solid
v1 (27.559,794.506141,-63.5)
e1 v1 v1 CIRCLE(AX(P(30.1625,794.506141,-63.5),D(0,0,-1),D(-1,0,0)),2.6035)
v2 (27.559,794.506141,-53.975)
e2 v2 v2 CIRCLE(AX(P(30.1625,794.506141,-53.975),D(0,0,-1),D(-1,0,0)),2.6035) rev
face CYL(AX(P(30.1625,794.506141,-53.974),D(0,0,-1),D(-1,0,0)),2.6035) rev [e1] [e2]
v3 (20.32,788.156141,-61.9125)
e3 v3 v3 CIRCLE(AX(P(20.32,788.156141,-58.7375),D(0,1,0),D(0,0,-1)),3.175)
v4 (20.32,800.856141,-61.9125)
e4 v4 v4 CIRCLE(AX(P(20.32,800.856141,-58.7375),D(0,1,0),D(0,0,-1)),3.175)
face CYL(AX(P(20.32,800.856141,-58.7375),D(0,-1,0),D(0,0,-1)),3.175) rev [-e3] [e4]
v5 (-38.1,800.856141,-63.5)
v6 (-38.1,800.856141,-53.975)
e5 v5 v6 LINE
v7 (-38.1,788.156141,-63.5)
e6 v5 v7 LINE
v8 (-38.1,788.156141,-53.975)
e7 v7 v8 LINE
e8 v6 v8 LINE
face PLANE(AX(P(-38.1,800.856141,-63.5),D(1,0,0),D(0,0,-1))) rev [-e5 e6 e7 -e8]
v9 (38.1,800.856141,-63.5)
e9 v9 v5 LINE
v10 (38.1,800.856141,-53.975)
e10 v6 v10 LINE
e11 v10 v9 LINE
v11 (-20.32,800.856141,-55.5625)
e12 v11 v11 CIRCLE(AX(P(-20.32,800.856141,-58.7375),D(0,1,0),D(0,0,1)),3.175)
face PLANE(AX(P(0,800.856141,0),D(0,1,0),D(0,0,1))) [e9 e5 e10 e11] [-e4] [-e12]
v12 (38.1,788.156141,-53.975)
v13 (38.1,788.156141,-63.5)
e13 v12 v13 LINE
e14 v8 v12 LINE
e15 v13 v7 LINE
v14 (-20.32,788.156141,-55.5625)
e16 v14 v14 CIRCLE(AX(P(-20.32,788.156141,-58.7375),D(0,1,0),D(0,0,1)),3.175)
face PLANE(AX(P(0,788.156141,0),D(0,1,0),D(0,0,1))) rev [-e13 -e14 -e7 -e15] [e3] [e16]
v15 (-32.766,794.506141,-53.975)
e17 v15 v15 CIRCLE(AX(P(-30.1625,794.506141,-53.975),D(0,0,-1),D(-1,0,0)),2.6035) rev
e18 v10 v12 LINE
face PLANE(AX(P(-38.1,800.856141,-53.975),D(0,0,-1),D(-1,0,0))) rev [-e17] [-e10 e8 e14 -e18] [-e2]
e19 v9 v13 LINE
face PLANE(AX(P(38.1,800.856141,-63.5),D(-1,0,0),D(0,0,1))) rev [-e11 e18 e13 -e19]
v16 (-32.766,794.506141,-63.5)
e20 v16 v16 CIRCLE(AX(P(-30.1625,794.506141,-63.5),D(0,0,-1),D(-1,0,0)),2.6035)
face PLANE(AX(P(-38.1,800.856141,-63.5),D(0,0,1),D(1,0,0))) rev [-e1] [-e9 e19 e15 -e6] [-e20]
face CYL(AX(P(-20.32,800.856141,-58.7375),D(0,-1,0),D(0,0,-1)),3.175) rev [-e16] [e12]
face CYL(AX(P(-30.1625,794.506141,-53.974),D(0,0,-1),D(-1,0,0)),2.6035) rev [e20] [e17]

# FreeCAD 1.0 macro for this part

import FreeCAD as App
import Part
import Sketcher

V = App.Vector
Q = App.Units.Quantity


def add_polygon(sketch, points):
    """Adds a closed chain of lines whose ends are joined by coincident constraints."""
    first, n = sketch.GeometryCount, len(points)
    for a, b in zip(points, points[1:] + points[:1]):
        sketch.addGeometry(Part.LineSegment(App.Vector(*a, 0), App.Vector(*b, 0)), False)
    for i in range(n):
        sketch.addConstraint(Sketcher.Constraint("Coincident", first + i, 2, first + (i + 1) % n, 1))

doc = App.newDocument("Part")
body = doc.addObject("PartDesign::Body", "Body")

# Sketch on XZ plane
sketch1 = body.newObject("Sketcher::SketchObject", "Sketch")
sketch1.AttachmentSupport = (doc.getObject("XZ_Plane"), [""])
sketch1.MapMode = "FlatFace"
sketch1.AttachmentOffset = App.Placement(V(0, 0, -788.156141), App.Rotation())
add_polygon(sketch1, [(-38.1, -63.5), (-38.1, -54), (38.1, -54), (38.1, -63.5)])  # lines 0-3
sketch1.addGeometry(Part.Circle(V(-20.3, -58.7, 0), V(0, 0, 1), 3.2), False)  # 4
sketch1.addGeometry(Part.Circle(V(20.3, -58.7, 0), V(0, 0, 1), 3.2), False)  # 5
sketch1.addConstraint(Sketcher.Constraint("Vertical", 0))
sketch1.addConstraint(Sketcher.Constraint("Horizontal", 1))
sketch1.addConstraint(Sketcher.Constraint("Vertical", 2))
sketch1.addConstraint(Sketcher.Constraint("Horizontal", 3))
sketch1.addConstraint(Sketcher.Constraint("Equal", 4, 5))
sketch1.addConstraint(Sketcher.Constraint("Symmetric", 4, 3, 5, 3, -2))
sketch1.addConstraint(Sketcher.Constraint("Diameter", 4, Q("0.25 in")))
sketch1.addConstraint(Sketcher.Constraint("DistanceX", 1, 1, 1, 2, Q("3 in")))
sketch1.addConstraint(Sketcher.Constraint("DistanceX", 4, 3, -1, 1, Q("0.8 in")))
sketch1.addConstraint(Sketcher.Constraint("DistanceX", 0, 2, -1, 1, Q("1.5 in")))
sketch1.addConstraint(Sketcher.Constraint("DistanceY", 2, 2, -1, 1, Q("2.5 in")))
sketch1.addConstraint(Sketcher.Constraint("DistanceY", 0, 1, 0, 2, Q("0.375 in")))
sketch1.addConstraint(Sketcher.Constraint("DistanceY", 4, 3, -1, 1, Q("2.3125 in")))
pad1 = body.newObject("PartDesign::Pad", "Pad")
pad1.Profile = sketch1
pad1.Length = Q("0.5 in")
pad1.Reversed = True

# Sketch on XY plane
sketch2 = body.newObject("Sketcher::SketchObject", "Sketch001")
sketch2.AttachmentSupport = (doc.getObject("XY_Plane"), [""])
sketch2.MapMode = "FlatFace"
sketch2.AttachmentOffset = App.Placement(V(0, 0, -2.5 * 25.4), App.Rotation())
sketch2.addGeometry(Part.Circle(V(-30.2, 794.5, 0), V(0, 0, 1), 2.6), False)
sketch2.addConstraint(Sketcher.Constraint("Diameter", 0, Q("0.205 in")))
sketch2.addConstraint(Sketcher.Constraint("DistanceX", 0, 3, -1, 1, Q("1.1875 in")))
sketch2.addConstraint(Sketcher.Constraint("DistanceY", -1, 1, 0, 3, 794.506141))
pocket1 = body.newObject("PartDesign::Pocket", "Pocket")
pocket1.Profile = sketch2
pocket1.Type = "UpToFirst"
pocket1.Reversed = True

# Sketch on XY plane
sketch3 = body.newObject("Sketcher::SketchObject", "Sketch002")
sketch3.AttachmentSupport = (doc.getObject("XY_Plane"), [""])
sketch3.MapMode = "FlatFace"
sketch3.AttachmentOffset = App.Placement(V(0, 0, -2.5 * 25.4), App.Rotation())
sketch3.addGeometry(Part.Circle(V(30.2, 794.5, 0), V(0, 0, 1), 2.6), False)
sketch3.addConstraint(Sketcher.Constraint("Diameter", 0, Q("0.205 in")))
sketch3.addConstraint(Sketcher.Constraint("DistanceX", -1, 1, 0, 3, Q("1.1875 in")))
sketch3.addConstraint(Sketcher.Constraint("DistanceY", -1, 1, 0, 3, 794.506141))
pocket2 = body.newObject("PartDesign::Pocket", "Pocket001")
pocket2.Profile = sketch3
pocket2.Type = "UpToFirst"
pocket2.Reversed = True

doc.recompute()
